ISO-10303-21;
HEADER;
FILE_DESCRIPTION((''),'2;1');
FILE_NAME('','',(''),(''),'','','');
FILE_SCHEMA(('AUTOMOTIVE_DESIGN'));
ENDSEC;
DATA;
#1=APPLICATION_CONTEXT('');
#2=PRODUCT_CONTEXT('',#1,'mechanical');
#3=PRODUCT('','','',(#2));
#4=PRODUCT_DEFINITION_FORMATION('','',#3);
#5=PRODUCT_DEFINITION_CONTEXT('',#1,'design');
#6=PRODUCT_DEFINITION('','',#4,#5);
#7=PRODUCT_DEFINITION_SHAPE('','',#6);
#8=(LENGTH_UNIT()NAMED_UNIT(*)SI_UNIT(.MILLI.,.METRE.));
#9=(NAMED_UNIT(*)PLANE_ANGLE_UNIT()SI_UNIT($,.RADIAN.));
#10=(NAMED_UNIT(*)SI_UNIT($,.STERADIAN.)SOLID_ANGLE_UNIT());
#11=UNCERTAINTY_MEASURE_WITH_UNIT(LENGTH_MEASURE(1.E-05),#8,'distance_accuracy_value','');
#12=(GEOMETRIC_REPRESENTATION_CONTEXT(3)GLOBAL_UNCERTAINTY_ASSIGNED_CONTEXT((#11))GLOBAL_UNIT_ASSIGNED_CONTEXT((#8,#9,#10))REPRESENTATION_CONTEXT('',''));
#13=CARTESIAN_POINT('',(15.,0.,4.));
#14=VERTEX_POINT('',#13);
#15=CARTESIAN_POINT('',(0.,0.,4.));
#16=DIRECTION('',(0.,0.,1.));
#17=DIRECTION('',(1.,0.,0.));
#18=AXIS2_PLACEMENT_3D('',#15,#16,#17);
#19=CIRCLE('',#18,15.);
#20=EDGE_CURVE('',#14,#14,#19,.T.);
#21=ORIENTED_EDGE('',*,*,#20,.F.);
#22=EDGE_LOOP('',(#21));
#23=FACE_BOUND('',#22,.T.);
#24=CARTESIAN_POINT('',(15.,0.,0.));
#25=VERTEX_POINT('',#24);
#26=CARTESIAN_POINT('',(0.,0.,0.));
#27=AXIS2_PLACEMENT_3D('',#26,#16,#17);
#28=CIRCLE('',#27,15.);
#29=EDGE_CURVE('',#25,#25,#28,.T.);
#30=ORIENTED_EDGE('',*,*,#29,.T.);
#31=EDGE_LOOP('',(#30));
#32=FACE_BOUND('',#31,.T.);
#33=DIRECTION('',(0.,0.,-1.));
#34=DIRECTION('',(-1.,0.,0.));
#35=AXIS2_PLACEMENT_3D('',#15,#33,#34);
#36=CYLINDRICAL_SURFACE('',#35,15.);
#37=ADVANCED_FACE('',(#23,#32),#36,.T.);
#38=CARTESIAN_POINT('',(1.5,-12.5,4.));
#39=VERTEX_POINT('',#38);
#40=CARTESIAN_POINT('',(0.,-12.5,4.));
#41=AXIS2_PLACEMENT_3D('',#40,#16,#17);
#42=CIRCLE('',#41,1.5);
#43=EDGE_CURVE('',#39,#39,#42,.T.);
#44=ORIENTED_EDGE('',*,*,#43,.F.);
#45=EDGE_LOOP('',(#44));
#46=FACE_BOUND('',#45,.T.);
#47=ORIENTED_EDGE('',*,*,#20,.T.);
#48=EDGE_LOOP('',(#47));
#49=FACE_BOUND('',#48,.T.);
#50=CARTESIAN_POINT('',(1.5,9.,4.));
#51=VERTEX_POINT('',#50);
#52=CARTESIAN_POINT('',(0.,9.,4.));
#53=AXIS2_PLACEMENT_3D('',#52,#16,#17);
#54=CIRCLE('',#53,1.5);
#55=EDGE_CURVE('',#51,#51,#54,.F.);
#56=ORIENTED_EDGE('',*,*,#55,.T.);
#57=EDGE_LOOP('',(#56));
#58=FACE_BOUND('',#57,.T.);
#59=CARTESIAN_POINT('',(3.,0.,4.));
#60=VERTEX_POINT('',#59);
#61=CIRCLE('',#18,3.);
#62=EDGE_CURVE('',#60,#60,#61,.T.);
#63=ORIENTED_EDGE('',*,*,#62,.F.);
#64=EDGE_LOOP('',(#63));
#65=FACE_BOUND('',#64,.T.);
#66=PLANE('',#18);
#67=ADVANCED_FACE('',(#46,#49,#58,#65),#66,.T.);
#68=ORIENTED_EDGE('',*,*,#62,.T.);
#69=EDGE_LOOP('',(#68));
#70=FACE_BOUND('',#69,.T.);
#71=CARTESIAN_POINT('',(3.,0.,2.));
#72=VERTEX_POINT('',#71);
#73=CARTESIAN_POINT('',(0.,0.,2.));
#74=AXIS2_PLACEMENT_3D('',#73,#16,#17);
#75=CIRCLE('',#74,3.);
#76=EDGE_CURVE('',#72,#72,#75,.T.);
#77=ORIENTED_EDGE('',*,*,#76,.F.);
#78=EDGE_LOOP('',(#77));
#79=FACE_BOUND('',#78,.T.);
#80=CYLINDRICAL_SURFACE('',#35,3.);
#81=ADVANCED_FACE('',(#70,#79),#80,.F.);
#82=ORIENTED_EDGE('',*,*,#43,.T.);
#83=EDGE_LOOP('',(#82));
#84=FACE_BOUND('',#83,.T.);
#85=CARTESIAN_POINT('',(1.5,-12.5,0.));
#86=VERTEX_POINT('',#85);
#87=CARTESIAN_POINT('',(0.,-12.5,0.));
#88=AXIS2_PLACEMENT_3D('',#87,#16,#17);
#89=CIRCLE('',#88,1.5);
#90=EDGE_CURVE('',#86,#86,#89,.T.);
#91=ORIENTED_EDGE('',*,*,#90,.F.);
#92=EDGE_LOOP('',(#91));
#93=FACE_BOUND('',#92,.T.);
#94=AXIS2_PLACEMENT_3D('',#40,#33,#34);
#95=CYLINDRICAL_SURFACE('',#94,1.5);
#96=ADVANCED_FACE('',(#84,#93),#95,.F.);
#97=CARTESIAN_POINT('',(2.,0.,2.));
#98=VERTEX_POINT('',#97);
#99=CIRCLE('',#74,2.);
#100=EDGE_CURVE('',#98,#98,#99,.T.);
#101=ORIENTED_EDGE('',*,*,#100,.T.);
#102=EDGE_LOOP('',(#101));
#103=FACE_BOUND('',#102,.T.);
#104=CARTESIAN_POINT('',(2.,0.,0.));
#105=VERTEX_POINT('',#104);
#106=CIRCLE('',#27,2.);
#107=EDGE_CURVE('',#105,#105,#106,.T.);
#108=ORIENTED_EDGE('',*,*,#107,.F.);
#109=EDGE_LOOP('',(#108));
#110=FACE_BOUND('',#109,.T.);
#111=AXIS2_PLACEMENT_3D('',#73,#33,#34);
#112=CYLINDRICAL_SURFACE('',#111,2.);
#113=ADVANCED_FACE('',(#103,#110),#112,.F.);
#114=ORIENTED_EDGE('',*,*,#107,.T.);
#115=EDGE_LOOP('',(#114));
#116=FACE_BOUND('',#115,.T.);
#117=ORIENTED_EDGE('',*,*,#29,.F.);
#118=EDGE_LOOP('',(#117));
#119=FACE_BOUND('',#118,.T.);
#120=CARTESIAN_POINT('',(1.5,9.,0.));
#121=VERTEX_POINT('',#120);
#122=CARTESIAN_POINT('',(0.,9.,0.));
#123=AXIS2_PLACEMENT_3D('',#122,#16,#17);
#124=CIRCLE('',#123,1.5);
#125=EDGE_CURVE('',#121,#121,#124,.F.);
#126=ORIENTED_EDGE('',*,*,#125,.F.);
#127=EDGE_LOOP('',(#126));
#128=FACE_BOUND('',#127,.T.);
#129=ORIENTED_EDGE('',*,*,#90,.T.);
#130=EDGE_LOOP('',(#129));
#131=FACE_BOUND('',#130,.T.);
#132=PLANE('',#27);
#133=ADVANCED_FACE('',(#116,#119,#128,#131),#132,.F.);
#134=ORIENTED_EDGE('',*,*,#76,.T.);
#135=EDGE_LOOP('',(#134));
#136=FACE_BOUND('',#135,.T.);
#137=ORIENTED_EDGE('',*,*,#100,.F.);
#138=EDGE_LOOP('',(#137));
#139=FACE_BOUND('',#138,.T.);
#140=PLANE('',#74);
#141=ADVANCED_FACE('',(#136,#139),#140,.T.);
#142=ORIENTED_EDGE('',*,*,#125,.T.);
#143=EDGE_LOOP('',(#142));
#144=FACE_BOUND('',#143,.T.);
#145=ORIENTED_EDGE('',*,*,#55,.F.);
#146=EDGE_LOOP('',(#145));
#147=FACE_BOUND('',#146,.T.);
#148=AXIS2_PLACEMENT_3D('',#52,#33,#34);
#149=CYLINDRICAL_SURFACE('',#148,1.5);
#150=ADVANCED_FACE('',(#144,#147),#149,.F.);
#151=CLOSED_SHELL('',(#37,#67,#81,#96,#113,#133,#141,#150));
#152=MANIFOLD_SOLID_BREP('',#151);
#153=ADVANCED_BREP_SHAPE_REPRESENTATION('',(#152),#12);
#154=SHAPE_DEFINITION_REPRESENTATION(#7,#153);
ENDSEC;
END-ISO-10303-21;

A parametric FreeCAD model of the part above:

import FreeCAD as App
import Part
import Sketcher

V = App.Vector

doc = App.newDocument("Part")
body = doc.addObject("PartDesign::Body", "Body")

# Sketch on XY plane
sketch1 = doc.addObject("Sketcher::SketchObject", "Sketch")
body.addObject(sketch1)
sketch1.AttachmentSupport = (doc.XY_Plane, [""])
sketch1.MapMode = "FlatFace"
sketch1.addGeometry([
    Part.Circle(V(0, 0, 0), V(0, 0, 1), 15),
    Part.Circle(V(0, -12.5, 0), V(0, 0, 1), 1.5),
    Part.Circle(V(0, 0, 0), V(0, 0, 1), 3),
    Part.Circle(V(0, 9, 0), V(0, 0, 1), 1.5),
], False)
sketch1.addConstraint([
    Sketcher.Constraint("Coincident", 0, 3, -1, 1),
    Sketcher.Constraint("Coincident", 2, 3, -1, 1),
    Sketcher.Constraint("Equal", 1, 3),
    Sketcher.Constraint("PointOnObject", 1, 3, -2),
    Sketcher.Constraint("PointOnObject", 3, 3, -2),
    Sketcher.Constraint("Diameter", 0, 30.0),
    Sketcher.Constraint("Diameter", 1, 3.0),
    Sketcher.Constraint("Diameter", 2, 6.0),
    Sketcher.Constraint("DistanceY", -1, 1, 3, 3, 9.0),
    Sketcher.Constraint("DistanceY", 1, 3, -1, 1, 12.5),
])
pad1 = doc.addObject("PartDesign::Pad", "Pad")
body.addObject(pad1)
pad1.Profile = sketch1
pad1.Length = 4

# Sketch on XY plane
sketch2 = doc.addObject("Sketcher::SketchObject", "Sketch001")
body.addObject(sketch2)
sketch2.AttachmentSupport = (doc.XY_Plane, [""])
sketch2.MapMode = "FlatFace"
sketch2.addGeometry([
    Part.Circle(V(0, 0, 0), V(0, 0, 1), 3),
    Part.Circle(V(0, 0, 0), V(0, 0, 1), 2),
], False)
sketch2.addConstraint([
    Sketcher.Constraint("Coincident", 0, 3, -1, 1),
    Sketcher.Constraint("Coincident", 1, 3, -1, 1),
    Sketcher.Constraint("Diameter", 0, 6.0),
    Sketcher.Constraint("Diameter", 1, 4.0),
])
pad2 = doc.addObject("PartDesign::Pad", "Pad001")
body.addObject(pad2)
pad2.Profile = sketch2
pad2.Length = 2

doc.recompute()
